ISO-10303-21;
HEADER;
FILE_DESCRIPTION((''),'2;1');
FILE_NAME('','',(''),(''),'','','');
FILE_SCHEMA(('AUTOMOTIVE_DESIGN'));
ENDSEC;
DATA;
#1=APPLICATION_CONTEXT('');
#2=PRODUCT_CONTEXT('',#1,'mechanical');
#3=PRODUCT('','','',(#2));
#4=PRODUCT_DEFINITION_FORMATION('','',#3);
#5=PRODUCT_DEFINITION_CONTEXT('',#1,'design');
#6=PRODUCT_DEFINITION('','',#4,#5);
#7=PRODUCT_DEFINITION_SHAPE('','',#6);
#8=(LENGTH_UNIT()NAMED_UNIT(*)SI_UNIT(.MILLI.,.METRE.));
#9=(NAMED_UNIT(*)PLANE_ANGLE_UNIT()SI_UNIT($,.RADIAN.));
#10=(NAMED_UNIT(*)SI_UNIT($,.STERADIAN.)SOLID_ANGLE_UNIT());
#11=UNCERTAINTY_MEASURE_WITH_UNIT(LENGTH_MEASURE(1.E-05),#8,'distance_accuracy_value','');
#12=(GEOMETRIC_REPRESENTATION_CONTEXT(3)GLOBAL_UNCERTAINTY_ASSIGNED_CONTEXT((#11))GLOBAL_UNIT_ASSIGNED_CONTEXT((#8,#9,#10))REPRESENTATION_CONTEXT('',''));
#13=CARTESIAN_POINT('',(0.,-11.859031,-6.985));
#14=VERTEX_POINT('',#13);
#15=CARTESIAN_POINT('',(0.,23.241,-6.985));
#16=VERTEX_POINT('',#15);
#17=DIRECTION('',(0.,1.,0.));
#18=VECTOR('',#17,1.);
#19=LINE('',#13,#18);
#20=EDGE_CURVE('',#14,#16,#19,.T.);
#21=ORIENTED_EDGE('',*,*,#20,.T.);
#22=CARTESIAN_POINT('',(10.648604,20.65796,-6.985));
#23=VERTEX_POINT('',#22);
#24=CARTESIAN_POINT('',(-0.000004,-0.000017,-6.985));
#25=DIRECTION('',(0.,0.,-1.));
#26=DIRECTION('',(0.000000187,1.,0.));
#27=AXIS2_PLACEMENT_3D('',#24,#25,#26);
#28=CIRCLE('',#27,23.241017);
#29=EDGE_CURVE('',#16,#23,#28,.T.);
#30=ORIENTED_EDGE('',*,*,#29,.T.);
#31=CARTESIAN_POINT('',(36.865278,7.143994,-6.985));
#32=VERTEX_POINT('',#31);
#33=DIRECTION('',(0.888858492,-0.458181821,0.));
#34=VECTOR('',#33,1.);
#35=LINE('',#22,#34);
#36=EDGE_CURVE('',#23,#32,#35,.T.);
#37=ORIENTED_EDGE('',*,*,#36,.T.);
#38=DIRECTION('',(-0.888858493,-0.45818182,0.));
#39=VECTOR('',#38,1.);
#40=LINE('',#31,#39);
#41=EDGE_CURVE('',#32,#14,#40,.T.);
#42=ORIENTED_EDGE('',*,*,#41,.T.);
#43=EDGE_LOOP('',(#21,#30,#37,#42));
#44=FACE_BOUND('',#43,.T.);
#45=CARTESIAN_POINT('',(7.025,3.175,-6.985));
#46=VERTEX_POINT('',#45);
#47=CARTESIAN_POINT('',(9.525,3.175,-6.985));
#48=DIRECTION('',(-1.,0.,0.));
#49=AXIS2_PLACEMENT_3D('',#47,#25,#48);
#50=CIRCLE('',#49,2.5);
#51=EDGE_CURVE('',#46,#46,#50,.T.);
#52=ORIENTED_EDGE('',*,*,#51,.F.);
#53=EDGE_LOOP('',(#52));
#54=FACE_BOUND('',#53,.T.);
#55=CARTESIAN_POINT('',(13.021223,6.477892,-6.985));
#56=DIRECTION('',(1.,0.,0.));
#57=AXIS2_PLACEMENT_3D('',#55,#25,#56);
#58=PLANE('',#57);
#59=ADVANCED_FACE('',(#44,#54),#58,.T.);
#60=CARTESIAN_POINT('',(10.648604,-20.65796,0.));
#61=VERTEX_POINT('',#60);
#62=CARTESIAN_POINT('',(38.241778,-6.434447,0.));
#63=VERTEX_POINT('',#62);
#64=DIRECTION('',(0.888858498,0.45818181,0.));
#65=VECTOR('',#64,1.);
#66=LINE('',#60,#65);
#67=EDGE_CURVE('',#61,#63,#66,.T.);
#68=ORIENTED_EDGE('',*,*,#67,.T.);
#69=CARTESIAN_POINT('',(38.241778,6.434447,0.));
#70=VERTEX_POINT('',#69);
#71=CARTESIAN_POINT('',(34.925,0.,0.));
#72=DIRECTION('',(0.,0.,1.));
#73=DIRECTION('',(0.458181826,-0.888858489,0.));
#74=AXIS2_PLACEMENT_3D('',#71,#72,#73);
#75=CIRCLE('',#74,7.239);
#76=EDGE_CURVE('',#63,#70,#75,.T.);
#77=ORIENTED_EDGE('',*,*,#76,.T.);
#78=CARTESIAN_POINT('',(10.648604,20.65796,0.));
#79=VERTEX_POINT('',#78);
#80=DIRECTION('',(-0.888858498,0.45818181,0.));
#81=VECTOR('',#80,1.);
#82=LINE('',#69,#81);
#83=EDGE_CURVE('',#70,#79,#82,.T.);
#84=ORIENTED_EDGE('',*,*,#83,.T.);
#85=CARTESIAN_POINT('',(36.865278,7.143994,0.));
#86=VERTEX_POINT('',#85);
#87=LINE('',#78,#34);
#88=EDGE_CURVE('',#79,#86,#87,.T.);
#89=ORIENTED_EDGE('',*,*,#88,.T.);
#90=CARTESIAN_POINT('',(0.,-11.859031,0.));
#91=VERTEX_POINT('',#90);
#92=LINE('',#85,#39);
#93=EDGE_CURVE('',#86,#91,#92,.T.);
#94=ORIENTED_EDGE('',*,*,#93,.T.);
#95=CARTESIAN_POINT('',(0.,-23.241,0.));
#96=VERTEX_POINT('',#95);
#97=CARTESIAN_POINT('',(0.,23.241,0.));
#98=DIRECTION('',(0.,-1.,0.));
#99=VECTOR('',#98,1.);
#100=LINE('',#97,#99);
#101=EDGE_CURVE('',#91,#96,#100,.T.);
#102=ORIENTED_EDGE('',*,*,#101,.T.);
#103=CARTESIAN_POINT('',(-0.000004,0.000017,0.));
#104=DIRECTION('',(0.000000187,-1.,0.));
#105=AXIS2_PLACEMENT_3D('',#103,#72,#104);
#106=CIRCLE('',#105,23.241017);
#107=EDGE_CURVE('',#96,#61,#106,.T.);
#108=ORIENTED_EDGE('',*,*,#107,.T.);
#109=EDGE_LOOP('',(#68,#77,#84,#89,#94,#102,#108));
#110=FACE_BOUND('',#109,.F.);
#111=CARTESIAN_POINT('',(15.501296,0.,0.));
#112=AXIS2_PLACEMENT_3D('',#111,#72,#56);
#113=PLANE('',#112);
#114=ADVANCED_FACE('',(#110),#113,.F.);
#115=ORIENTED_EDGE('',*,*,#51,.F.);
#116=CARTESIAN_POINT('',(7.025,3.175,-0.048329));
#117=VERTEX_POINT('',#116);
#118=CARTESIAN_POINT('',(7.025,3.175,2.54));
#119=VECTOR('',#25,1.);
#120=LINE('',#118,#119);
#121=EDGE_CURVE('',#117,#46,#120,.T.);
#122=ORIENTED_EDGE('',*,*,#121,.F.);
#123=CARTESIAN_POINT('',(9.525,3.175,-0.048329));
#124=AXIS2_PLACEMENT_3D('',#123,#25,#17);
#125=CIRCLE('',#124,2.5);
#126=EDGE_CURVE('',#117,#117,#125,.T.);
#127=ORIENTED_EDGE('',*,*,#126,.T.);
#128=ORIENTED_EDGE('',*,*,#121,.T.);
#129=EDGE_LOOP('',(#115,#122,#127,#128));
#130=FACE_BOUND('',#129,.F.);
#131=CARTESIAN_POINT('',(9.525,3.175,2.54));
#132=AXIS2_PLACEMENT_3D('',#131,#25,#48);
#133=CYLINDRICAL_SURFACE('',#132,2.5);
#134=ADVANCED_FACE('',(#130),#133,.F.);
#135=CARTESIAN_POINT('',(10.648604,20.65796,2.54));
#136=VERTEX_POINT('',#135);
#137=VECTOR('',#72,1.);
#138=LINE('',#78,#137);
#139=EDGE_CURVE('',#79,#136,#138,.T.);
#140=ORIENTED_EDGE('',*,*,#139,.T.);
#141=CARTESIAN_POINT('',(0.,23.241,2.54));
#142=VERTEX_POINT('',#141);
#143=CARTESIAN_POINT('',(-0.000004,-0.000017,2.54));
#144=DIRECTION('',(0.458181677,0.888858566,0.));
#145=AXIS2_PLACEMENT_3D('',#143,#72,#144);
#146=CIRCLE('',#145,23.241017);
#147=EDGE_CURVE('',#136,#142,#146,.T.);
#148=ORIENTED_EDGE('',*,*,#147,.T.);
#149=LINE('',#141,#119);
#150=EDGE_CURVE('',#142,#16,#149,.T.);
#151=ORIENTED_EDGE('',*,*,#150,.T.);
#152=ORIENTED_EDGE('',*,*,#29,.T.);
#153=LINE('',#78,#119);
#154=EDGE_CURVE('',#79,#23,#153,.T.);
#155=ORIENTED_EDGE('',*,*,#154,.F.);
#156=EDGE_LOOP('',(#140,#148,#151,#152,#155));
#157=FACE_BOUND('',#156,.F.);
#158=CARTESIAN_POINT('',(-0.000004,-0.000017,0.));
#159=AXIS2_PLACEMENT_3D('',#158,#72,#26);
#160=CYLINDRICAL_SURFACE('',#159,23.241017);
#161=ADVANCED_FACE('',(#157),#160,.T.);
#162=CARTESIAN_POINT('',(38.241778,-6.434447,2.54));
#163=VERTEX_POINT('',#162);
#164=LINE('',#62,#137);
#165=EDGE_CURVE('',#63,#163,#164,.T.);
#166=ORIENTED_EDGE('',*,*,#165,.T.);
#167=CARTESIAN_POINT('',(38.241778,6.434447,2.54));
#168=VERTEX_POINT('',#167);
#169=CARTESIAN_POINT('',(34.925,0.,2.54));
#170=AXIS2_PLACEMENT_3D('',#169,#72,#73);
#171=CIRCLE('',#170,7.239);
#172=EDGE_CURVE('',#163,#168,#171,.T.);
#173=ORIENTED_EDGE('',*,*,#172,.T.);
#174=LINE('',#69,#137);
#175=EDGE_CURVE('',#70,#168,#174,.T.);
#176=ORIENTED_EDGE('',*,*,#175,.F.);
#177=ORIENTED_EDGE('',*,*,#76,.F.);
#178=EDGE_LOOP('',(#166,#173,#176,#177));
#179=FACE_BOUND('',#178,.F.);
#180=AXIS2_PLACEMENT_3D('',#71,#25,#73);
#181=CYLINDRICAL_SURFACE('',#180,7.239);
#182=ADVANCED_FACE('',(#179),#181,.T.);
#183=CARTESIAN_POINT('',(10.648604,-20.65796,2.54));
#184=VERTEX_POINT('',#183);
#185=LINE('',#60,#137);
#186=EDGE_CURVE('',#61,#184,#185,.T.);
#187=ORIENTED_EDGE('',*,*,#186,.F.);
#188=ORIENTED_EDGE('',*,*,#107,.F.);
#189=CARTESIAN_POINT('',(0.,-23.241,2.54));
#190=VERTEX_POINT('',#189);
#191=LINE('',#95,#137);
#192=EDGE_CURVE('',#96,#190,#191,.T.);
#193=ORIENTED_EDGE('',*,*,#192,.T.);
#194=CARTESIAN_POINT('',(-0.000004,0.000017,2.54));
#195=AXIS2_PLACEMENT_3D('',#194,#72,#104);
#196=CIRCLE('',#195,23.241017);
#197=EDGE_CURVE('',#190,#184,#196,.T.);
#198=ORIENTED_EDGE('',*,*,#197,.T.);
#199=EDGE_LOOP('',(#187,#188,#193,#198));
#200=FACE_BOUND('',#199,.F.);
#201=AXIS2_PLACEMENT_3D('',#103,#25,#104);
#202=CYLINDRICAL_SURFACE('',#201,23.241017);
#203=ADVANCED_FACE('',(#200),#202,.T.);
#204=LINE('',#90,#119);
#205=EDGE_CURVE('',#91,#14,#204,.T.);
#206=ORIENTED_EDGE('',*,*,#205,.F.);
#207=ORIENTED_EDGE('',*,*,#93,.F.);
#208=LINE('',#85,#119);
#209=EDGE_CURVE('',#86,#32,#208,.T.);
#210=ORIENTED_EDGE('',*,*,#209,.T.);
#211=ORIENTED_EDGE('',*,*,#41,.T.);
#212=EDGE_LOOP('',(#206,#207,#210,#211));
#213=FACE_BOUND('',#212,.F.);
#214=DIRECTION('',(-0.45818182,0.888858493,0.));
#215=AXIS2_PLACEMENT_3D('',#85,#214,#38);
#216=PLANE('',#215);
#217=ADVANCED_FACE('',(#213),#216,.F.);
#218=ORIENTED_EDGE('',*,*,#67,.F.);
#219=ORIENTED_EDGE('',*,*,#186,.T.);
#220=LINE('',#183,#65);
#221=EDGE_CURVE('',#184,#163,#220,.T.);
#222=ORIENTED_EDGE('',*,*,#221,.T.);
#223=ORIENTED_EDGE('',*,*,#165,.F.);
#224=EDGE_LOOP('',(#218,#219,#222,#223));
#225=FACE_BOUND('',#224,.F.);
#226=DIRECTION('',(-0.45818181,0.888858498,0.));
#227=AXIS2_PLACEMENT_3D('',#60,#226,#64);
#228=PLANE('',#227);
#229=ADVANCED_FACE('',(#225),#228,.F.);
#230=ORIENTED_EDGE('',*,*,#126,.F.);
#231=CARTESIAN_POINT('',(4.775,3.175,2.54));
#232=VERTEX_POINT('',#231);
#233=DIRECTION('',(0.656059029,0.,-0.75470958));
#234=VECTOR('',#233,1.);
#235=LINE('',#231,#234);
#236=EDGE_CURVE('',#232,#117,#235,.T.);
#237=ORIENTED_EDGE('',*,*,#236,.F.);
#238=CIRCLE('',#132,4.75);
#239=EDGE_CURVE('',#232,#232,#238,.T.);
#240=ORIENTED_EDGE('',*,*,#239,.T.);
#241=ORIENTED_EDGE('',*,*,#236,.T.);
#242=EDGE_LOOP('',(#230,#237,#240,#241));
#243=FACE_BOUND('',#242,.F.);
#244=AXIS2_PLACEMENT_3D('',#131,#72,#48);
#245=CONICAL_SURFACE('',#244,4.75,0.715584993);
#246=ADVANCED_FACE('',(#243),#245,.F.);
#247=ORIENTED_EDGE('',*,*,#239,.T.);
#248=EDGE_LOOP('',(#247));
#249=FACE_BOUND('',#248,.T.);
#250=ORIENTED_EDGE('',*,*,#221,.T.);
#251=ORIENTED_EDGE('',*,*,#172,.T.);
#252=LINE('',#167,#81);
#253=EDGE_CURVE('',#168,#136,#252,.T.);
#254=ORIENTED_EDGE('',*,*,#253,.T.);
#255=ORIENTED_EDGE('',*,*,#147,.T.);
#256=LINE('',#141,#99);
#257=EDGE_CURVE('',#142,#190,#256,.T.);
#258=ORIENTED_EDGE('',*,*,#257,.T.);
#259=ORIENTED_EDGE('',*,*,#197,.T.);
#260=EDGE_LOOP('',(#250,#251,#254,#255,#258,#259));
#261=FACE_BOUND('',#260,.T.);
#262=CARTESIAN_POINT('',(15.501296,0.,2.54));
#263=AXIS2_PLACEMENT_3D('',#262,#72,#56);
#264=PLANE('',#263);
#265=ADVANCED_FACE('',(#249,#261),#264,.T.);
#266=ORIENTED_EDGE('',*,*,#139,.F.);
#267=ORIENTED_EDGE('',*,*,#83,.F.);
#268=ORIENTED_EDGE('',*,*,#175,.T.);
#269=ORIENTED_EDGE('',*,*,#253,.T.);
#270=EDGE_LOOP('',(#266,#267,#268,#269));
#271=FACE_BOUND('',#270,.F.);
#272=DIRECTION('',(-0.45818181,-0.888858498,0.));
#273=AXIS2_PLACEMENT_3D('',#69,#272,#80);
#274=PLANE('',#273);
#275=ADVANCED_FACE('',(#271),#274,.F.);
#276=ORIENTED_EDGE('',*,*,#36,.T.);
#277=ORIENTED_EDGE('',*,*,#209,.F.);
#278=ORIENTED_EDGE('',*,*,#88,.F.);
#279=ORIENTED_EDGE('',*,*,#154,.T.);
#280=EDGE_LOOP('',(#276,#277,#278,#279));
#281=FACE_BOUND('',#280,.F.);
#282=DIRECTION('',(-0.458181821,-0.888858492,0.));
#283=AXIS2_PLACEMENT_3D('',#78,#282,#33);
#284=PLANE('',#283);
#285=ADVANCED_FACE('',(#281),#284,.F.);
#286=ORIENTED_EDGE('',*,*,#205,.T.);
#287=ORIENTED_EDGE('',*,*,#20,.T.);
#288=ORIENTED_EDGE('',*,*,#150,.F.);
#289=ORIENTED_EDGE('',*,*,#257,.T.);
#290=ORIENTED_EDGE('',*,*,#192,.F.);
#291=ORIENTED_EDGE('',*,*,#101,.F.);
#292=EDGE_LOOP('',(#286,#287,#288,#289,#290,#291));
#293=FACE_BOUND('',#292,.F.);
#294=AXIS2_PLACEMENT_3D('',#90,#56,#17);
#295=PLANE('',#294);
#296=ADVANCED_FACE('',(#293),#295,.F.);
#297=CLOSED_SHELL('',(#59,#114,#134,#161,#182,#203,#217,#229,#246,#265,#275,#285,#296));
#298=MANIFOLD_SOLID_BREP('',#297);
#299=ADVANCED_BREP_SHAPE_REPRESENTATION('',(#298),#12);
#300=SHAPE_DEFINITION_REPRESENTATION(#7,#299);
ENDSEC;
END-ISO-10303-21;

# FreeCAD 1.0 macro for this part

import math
import FreeCAD as App
import Part
import Sketcher

V = App.Vector
Q = App.Units.Quantity

doc = App.newDocument("Part")
body = doc.addObject("PartDesign::Body", "Body")

# Sketch on XY plane
sketch1 = doc.addObject("Sketcher::SketchObject", "Sketch")
body.addObject(sketch1)
sketch1.AttachmentSupport = (doc.XY_Plane, [""])
sketch1.MapMode = "FlatFace"
sketch1.addGeometry([
    Part.ArcOfCircle(Part.Circle(V(-0.000004, -0.000017, 0), V(0, 0, 1), 23.241017), math.radians(62.730163), math.radians(89.999989)),  # 0
    Part.LineSegment(V(0, 23.241, 0), V(0, -23.241, 0)),  # 1
    Part.ArcOfCircle(Part.Circle(V(-0.000004, 0.000017, 0), V(0, 0, 1), 23.241017), math.radians(-89.999989), math.radians(-62.730163)),  # 2
    Part.LineSegment(V(10.648604, -20.65796, 0), V(38.241778, -6.434447, 0)),  # 3
    Part.ArcOfCircle(Part.Circle(V(34.925, 0, 0), V(0, 0, 1), 7.239), math.radians(-62.730154), math.radians(62.730154)),  # 4
    Part.LineSegment(V(38.241778, 6.434447, 0), V(10.648604, 20.65796, 0)),  # 5
], False)
sketch1.addConstraint([
    Sketcher.Constraint("Coincident", 0, 2, 1, 1),
    Sketcher.Constraint("Coincident", 1, 2, 2, 1),
    Sketcher.Constraint("Tangent", 2, 2, 3, 1),
    Sketcher.Constraint("Tangent", 3, 2, 4, 1),
    Sketcher.Constraint("Tangent", 4, 2, 5, 1),
    Sketcher.Constraint("Tangent", 5, 2, 0, 1),
    Sketcher.Constraint("Vertical", 1),
    Sketcher.Constraint("Equal", 0, 2),
    Sketcher.Constraint("Symmetric", 0, 3, 2, 3, -1, 1),
    Sketcher.Constraint("Symmetric", 3, 2, 4, 2, -1),
    Sketcher.Constraint("PointOnObject", 0, 2, -2),
    Sketcher.Constraint("Radius", 4, Q("0.285 in")),
    Sketcher.Constraint("DistanceY", 1, 2, 1, 1, Q("1.83 in")),
    Sketcher.Constraint("DistanceX", -1, 1, 4, 3, Q("1.375 in")),
    Sketcher.Constraint("Radius", 0, 23.241017),
])
pad1 = doc.addObject("PartDesign::Pad", "Pad")
body.addObject(pad1)
pad1.Profile = sketch1
pad1.Length = Q("0.1 in")

# Sketch on XY plane
sketch2 = doc.addObject("Sketcher::SketchObject", "Sketch001")
body.addObject(sketch2)
sketch2.AttachmentSupport = (doc.XY_Plane, [""])
sketch2.MapMode = "FlatFace"
sketch2.addGeometry([
    Part.LineSegment(V(36.865278, 7.143994, 0), V(0, -11.859031, 0)),
    Part.LineSegment(V(0, -11.859031, 0), V(0, 23.241, 0)),
    Part.ArcOfCircle(Part.Circle(V(-0.000004, -0.000017, 0), V(0, 0, 1), 23.241017), math.radians(62.730163), math.radians(89.999989)),
    Part.LineSegment(V(10.648604, 20.65796, 0), V(36.865278, 7.143994, 0)),
], False)
sketch2.addConstraint([
    Sketcher.Constraint("Coincident", 0, 2, 1, 1),
    Sketcher.Constraint("Coincident", 1, 2, 2, 2),
    Sketcher.Constraint("Tangent", 2, 1, 3, 1),
    Sketcher.Constraint("Coincident", 3, 2, 0, 1),
    Sketcher.Constraint("Vertical", 1),
    Sketcher.Constraint("PointOnObject", 0, 2, -2),
    Sketcher.Constraint("DistanceY", -1, 1, 1, 2, Q("0.915 in")),
    Sketcher.Constraint("Radius", 2, 23.241017),
    Sketcher.Constraint("DistanceY", 1, 1, 1, 2, 35.100031),
    Sketcher.Constraint("DistanceY", -1, 1, 2, 1, 20.65796),
    Sketcher.Constraint("DistanceX", -1, 1, 3, 2, 36.865278),
    Sketcher.Constraint("DistanceY", 2, 3, 3, 2, 7.144011),
])
pad2 = doc.addObject("PartDesign::Pad", "Pad001")
body.addObject(pad2)
pad2.Profile = sketch2
pad2.Length = Q("0.275 in")
pad2.Reversed = True

# Sketch on XY plane
sketch3 = doc.addObject("Sketcher::SketchObject", "Sketch002")
body.addObject(sketch3)
sketch3.AttachmentSupport = (doc.XY_Plane, [""])
sketch3.MapMode = "FlatFace"
sketch3.AttachmentOffset = App.Placement(V(0, 0, 0.1 * 25.4), App.Rotation())
sketch3.addGeometry(Part.Circle(V(9.525, 3.175, 0), V(0, 0, 1), 2.5), False)
sketch3.addConstraint([
    Sketcher.Constraint("Diameter", 0, 5.0),
    Sketcher.Constraint("DistanceX", -1, 1, 0, 3, Q("0.375 in")),
    Sketcher.Constraint("DistanceY", -1, 1, 0, 3, Q("0.125 in")),
])
doc.recompute()
hole = doc.addObject("PartDesign::Hole", "Hole")
body.addObject(hole)
hole.Profile = sketch3
hole.ThreadType = "None"
hole.Diameter = 5
hole.DepthType = "ThroughAll"
hole.HoleCutType = "Countersink"
hole.HoleCutDiameter = 9.5
hole.HoleCutCountersinkAngle = 82

doc.recompute()
